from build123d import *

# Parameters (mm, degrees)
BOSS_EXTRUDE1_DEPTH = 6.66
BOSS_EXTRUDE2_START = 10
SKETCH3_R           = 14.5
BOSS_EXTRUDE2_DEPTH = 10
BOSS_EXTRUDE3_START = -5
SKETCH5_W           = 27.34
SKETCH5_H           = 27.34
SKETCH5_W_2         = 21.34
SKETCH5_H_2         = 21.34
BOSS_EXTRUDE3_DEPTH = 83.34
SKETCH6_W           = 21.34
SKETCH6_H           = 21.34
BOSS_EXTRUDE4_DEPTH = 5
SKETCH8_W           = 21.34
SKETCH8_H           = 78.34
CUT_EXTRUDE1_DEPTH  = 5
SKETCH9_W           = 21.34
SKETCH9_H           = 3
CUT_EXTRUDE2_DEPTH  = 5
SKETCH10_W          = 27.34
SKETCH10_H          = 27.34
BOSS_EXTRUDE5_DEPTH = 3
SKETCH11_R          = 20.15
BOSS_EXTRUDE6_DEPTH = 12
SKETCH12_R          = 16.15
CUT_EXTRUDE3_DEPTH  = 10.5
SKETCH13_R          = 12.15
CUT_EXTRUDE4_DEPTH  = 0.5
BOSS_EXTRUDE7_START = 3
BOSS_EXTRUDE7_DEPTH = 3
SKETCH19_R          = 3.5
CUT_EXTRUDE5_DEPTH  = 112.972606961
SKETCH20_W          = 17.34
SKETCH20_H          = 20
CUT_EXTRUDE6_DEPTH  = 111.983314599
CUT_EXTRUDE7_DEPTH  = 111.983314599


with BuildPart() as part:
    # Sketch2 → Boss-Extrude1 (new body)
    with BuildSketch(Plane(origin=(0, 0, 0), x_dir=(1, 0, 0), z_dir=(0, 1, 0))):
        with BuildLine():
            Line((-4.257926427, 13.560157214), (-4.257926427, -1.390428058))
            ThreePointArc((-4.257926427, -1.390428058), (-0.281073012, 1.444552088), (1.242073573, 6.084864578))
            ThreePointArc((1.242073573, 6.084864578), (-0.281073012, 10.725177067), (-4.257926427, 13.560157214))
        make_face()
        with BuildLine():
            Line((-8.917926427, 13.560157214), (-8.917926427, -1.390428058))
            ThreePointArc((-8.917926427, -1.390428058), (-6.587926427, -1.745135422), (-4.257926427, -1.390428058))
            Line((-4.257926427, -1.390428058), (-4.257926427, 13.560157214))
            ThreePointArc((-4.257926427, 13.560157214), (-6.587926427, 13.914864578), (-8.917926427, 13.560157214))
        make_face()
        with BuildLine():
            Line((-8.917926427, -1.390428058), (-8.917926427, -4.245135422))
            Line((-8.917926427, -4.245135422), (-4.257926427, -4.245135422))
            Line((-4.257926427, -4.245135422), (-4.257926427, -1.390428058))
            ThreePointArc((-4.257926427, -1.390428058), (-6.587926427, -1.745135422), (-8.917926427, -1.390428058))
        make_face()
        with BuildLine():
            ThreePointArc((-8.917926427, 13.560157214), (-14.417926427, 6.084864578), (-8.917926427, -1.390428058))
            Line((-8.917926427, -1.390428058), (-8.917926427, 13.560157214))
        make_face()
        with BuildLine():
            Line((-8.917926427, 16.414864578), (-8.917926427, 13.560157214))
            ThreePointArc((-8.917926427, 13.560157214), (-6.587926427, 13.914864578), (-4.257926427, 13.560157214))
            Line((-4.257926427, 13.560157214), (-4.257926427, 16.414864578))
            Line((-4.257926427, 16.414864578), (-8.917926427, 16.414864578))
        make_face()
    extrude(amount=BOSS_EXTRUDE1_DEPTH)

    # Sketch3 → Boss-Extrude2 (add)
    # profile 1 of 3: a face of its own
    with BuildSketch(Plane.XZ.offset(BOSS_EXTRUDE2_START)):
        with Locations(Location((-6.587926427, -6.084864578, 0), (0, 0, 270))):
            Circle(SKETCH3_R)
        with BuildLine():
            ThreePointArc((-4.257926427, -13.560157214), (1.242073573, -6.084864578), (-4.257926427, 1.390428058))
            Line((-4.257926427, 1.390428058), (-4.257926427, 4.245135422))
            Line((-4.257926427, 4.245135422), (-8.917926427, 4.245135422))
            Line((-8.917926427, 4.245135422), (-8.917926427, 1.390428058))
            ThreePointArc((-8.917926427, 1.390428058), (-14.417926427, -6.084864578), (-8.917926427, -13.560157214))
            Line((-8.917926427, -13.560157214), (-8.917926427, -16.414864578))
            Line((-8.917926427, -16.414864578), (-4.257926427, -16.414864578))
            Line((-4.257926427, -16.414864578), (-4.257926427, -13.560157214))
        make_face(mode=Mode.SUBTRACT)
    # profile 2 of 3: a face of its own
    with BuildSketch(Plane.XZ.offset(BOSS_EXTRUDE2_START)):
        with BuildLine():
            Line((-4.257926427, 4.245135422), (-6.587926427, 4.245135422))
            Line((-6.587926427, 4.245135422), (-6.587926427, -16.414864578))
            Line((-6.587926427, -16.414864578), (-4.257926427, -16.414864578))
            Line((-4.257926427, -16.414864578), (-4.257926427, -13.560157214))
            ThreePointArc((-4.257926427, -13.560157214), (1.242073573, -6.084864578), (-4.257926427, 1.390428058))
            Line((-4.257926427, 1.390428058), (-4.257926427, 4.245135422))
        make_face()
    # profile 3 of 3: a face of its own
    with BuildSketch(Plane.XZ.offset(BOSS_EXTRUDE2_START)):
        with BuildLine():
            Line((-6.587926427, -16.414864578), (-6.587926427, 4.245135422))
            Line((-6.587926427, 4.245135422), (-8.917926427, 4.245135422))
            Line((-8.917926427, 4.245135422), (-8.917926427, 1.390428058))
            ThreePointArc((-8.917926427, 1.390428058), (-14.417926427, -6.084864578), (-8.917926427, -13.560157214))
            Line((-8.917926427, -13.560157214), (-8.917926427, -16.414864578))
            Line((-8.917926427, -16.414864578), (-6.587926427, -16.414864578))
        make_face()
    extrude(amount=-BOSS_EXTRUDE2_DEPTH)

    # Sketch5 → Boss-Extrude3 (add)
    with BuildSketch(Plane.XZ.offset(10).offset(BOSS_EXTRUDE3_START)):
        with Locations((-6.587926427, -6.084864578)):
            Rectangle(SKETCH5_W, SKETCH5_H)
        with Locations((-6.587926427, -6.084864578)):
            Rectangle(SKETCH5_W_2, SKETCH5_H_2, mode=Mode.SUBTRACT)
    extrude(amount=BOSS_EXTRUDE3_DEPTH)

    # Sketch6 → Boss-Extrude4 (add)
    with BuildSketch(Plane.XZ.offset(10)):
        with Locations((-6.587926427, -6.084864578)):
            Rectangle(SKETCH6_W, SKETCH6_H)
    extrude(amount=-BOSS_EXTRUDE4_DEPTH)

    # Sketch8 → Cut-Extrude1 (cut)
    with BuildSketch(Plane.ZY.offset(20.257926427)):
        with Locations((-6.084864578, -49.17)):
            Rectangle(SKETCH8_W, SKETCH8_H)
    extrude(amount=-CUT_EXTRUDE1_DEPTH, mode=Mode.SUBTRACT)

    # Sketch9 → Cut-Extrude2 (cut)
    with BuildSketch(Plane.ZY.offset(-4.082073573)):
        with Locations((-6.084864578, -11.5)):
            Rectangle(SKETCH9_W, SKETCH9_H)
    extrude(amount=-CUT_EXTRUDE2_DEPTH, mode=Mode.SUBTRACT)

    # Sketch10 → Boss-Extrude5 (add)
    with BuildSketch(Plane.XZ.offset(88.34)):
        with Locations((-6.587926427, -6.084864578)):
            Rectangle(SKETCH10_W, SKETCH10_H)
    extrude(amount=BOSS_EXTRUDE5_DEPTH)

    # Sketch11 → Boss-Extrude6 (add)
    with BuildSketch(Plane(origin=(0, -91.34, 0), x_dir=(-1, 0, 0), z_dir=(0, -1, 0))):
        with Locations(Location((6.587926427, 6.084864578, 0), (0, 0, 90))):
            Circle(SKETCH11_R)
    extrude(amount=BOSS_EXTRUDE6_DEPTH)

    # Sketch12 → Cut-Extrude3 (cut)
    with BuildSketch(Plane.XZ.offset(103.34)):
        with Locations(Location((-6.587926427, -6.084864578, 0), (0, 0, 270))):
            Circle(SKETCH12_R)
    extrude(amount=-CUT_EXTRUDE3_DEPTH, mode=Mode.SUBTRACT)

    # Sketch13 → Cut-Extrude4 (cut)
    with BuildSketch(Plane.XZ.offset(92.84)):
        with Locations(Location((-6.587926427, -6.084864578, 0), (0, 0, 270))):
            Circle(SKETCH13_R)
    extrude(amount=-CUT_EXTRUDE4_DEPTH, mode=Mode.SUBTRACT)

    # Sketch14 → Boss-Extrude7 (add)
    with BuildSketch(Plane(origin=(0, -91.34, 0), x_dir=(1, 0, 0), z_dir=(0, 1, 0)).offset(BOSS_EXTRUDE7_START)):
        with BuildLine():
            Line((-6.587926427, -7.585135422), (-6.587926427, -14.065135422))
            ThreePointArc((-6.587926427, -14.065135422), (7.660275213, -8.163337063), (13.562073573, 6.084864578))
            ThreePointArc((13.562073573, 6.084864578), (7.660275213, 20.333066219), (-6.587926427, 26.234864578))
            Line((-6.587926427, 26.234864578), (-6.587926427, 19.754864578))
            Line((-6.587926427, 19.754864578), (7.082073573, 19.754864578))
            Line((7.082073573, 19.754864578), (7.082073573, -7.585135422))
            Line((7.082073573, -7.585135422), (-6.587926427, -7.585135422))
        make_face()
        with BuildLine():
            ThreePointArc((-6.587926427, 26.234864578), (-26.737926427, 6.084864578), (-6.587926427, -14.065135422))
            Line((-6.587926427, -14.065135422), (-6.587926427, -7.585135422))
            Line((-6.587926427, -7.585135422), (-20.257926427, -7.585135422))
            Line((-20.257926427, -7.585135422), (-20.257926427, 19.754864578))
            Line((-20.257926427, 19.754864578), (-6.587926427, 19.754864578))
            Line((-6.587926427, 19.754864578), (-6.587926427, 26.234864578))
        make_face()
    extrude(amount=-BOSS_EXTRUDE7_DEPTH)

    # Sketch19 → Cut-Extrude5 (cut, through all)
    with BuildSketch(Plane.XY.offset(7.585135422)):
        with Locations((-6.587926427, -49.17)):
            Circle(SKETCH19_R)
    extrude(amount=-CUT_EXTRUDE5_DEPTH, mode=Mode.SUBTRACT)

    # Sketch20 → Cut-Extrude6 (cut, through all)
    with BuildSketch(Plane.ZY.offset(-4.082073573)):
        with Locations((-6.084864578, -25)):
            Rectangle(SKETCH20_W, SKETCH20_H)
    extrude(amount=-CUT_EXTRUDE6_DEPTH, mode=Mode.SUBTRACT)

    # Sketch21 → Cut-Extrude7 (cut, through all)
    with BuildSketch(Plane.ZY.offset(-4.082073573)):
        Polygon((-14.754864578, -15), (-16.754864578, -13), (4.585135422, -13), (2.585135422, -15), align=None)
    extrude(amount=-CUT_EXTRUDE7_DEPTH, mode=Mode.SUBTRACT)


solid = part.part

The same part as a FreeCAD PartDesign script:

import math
import FreeCAD as App
import Part
import Sketcher
Q = App.Units.Quantity


def add_polygon(sketch, points):
    """Adds a closed chain of lines whose ends are joined by coincident constraints."""
    first, n = sketch.GeometryCount, len(points)
    for a, b in zip(points, points[1:] + points[:1]):
        sketch.addGeometry(Part.LineSegment(App.Vector(*a, 0), App.Vector(*b, 0)), False)
    for i in range(n):
        sketch.addConstraint(Sketcher.Constraint("Coincident", first + i, 2, first + (i + 1) % n, 1))

doc = App.newDocument("Part")
body = doc.addObject("PartDesign::Body", "Body")

sketch1 = body.newObject("Sketcher::SketchObject", "Sketch")
sketch1.AttachmentSupport = (doc.getObject("XZ_Plane"), [""])
sketch1.MapMode = "FlatFace"
sketch1.addGeometry(Part.ArcOfCircle(Part.Circle(App.Vector(-6.6, -6.1, 0), App.Vector(0, 0, 1), 7.8), math.radians(0), math.radians(73)), False)
sketch1.addGeometry(Part.ArcOfCircle(Part.Circle(App.Vector(-6.6, -6.1, 0), App.Vector(0, 0, 1), 7.8), math.radians(-73), math.radians(0)), False)
sketch1.addGeometry(Part.LineSegment(App.Vector(-4.3, -13.6, 0), App.Vector(-4.3, -16.4, 0)), False)
sketch1.addGeometry(Part.LineSegment(App.Vector(-4.3, -16.4, 0), App.Vector(-8.9, -16.4, 0)), False)
sketch1.addGeometry(Part.LineSegment(App.Vector(-8.9, -16.4, 0), App.Vector(-8.9, -13.6, 0)), False)
sketch1.addGeometry(Part.ArcOfCircle(Part.Circle(App.Vector(-6.6, -6.1, 0), App.Vector(0, 0, 1), 7.8), math.radians(107), math.radians(253)), False)
sketch1.addGeometry(Part.LineSegment(App.Vector(-8.9, 1.4, 0), App.Vector(-8.9, 4.2, 0)), False)
sketch1.addGeometry(Part.LineSegment(App.Vector(-8.9, 4.2, 0), App.Vector(-4.3, 4.2, 0)), False)
sketch1.addGeometry(Part.LineSegment(App.Vector(-4.3, 4.2, 0), App.Vector(-4.3, 1.4, 0)), False)
sketch1.addConstraint(Sketcher.Constraint("Tangent", 0, 1, 1, 2))
sketch1.addConstraint(Sketcher.Constraint("Coincident", 1, 1, 2, 1))
sketch1.addConstraint(Sketcher.Constraint("Coincident", 2, 2, 3, 1))
sketch1.addConstraint(Sketcher.Constraint("Coincident", 3, 2, 4, 1))
sketch1.addConstraint(Sketcher.Constraint("Coincident", 4, 2, 5, 2))
sketch1.addConstraint(Sketcher.Constraint("Coincident", 5, 1, 6, 1))
sketch1.addConstraint(Sketcher.Constraint("Coincident", 6, 2, 7, 1))
sketch1.addConstraint(Sketcher.Constraint("Coincident", 7, 2, 8, 1))
sketch1.addConstraint(Sketcher.Constraint("Coincident", 8, 2, 0, 2))
sketch1.addConstraint(Sketcher.Constraint("Vertical", 2))
sketch1.addConstraint(Sketcher.Constraint("Horizontal", 3))
sketch1.addConstraint(Sketcher.Constraint("Vertical", 4))
sketch1.addConstraint(Sketcher.Constraint("Vertical", 6))
sketch1.addConstraint(Sketcher.Constraint("Horizontal", 7))
sketch1.addConstraint(Sketcher.Constraint("Vertical", 8))
sketch1.addConstraint(Sketcher.Constraint("Coincident", 5, 3, 0, 3))
sketch1.addConstraint(Sketcher.Constraint("Equal", 0, 1))
sketch1.addConstraint(Sketcher.Constraint("Equal", 1, 5))
sketch1.addConstraint(Sketcher.Constraint("Horizontal", 5, 3, 0, 1))
sketch1.addConstraint(Sketcher.Constraint("Horizontal", 1, 1, 4, 2))
sketch1.addConstraint(Sketcher.Constraint("Horizontal", 5, 1, 8, 2))
sketch1.addConstraint(Sketcher.Constraint("Vertical", 4, 2, 5, 1))
sketch1.addConstraint(Sketcher.Constraint("Equal", 4, 6))
sketch1.addConstraint(Sketcher.Constraint("Radius", 0, Q("7.83 mm")))
sketch1.addConstraint(Sketcher.Constraint("DistanceX", 3, 2, 3, 1, Q("4.66 mm")))
sketch1.addConstraint(Sketcher.Constraint("DistanceY", 2, 2, 5, 3, Q("10.33 mm")))
sketch1.addConstraint(Sketcher.Constraint("DistanceY", -1, 1, 5, 1, Q("1.390428 mm")))
sketch1.addConstraint(Sketcher.Constraint("DistanceX", 0, 3, -1, 1, Q("6.587926 mm")))
pad1 = body.newObject("PartDesign::Pad", "Pad")
pad1.Profile = sketch1
pad1.Length = 6.66
pad1.Reversed = True

sketch2 = body.newObject("Sketcher::SketchObject", "Sketch001")
sketch2.AttachmentSupport = (doc.getObject("XZ_Plane"), [""])
sketch2.MapMode = "FlatFace"
sketch2.AttachmentOffset = App.Placement(App.Vector(0, 0, 10), App.Rotation())
sketch2.addGeometry(Part.Circle(App.Vector(-7, -6, 0), App.Vector(0, 0, 1), 14), False)
sketch2.addConstraint(Sketcher.Constraint("Diameter", 0, Q("29 mm")))
sketch2.addConstraint(Sketcher.Constraint("DistanceX", 0, 3, -1, 1, Q("6.587926 mm")))
sketch2.addConstraint(Sketcher.Constraint("DistanceY", 0, 3, -1, 1, Q("6.084865 mm")))
pad2 = body.newObject("PartDesign::Pad", "Pad001")
pad2.Profile = sketch2
pad2.Length = 10
pad2.Reversed = True

sketch3 = body.newObject("Sketcher::SketchObject", "Sketch002")
sketch3.AttachmentSupport = (doc.getObject("XZ_Plane"), [""])
sketch3.MapMode = "FlatFace"
sketch3.AttachmentOffset = App.Placement(App.Vector(0, 0, 5), App.Rotation())
add_polygon(sketch3, [(-20, 8), (-20, -20), (7, -20), (7, 8)])
add_polygon(sketch3, [(4, -17), (-17, -17), (-17, 5), (4, 5)])
sketch3.addConstraint(Sketcher.Constraint("Vertical", 0))
sketch3.addConstraint(Sketcher.Constraint("Horizontal", 1))
sketch3.addConstraint(Sketcher.Constraint("Vertical", 2))
sketch3.addConstraint(Sketcher.Constraint("Horizontal", 3))
sketch3.addConstraint(Sketcher.Constraint("Horizontal", 4))
sketch3.addConstraint(Sketcher.Constraint("Vertical", 5))
sketch3.addConstraint(Sketcher.Constraint("Horizontal", 6))
sketch3.addConstraint(Sketcher.Constraint("Vertical", 7))
sketch3.addConstraint(Sketcher.Constraint("Equal", 3, 0))
sketch3.addConstraint(Sketcher.Constraint("Equal", 6, 5))
sketch3.addConstraint(Sketcher.Constraint("DistanceX", 0, 2, 4, 2, Q("3 mm")))
sketch3.addConstraint(Sketcher.Constraint("DistanceY", 0, 2, 4, 2, Q("3 mm")))
sketch3.addConstraint(Sketcher.Constraint("DistanceY", 5, 2, 3, 2, Q("3 mm")))
sketch3.addConstraint(Sketcher.Constraint("DistanceX", 1, 1, 1, 2, Q("27.34 mm")))
sketch3.addConstraint(Sketcher.Constraint("DistanceX", 0, 2, -1, 1, Q("20.257926 mm")))
sketch3.addConstraint(Sketcher.Constraint("DistanceY", 0, 2, -1, 1, Q("19.754865 mm")))
pad3 = body.newObject("PartDesign::Pad", "Pad002")
pad3.Profile = sketch3
pad3.Length = 83.34

sketch4 = body.newObject("Sketcher::SketchObject", "Sketch003")
sketch4.AttachmentSupport = (doc.getObject("XZ_Plane"), [""])
sketch4.MapMode = "FlatFace"
sketch4.AttachmentOffset = App.Placement(App.Vector(0, 0, 10), App.Rotation())
add_polygon(sketch4, [(-17, 5), (-17, -17), (4, -17), (4, 5)])
sketch4.addConstraint(Sketcher.Constraint("Vertical", 0))
sketch4.addConstraint(Sketcher.Constraint("Horizontal", 1))
sketch4.addConstraint(Sketcher.Constraint("Vertical", 2))
sketch4.addConstraint(Sketcher.Constraint("Horizontal", 3))
sketch4.addConstraint(Sketcher.Constraint("Equal", 3, 0))
sketch4.addConstraint(Sketcher.Constraint("DistanceX", 1, 1, 1, 2, Q("21.34 mm")))
sketch4.addConstraint(Sketcher.Constraint("DistanceX", 0, 2, -1, 1, Q("17.257926 mm")))
sketch4.addConstraint(Sketcher.Constraint("DistanceY", 0, 2, -1, 1, Q("16.754865 mm")))
pad4 = body.newObject("PartDesign::Pad", "Pad003")
pad4.Profile = sketch4
pad4.Length = 5
pad4.Reversed = True

sketch5 = body.newObject("Sketcher::SketchObject", "Sketch004")
sketch5.AttachmentSupport = (doc.getObject("YZ_Plane"), [""])
sketch5.MapMode = "FlatFace"
sketch5.AttachmentOffset = App.Placement(App.Vector(0, 0, -20.257926), App.Rotation())
add_polygon(sketch5, [(-10, -17), (-88, -17), (-88, 5), (-10, 5)])
sketch5.addConstraint(Sketcher.Constraint("Horizontal", 0))
sketch5.addConstraint(Sketcher.Constraint("Vertical", 1))
sketch5.addConstraint(Sketcher.Constraint("Horizontal", 2))
sketch5.addConstraint(Sketcher.Constraint("Vertical", 3))
sketch5.addConstraint(Sketcher.Constraint("DistanceX", 2, 2, -1, 1, Q("10 mm")))
sketch5.addConstraint(Sketcher.Constraint("DistanceX", 0, 2, 0, 1, Q("78.34 mm")))
sketch5.addConstraint(Sketcher.Constraint("DistanceY", 1, 1, 1, 2, Q("21.34 mm")))
sketch5.addConstraint(Sketcher.Constraint("DistanceY", 0, 2, -1, 1, Q("16.754865 mm")))
pocket1 = body.newObject("PartDesign::Pocket", "Pocket")
pocket1.Profile = sketch5
pocket1.Length = 5
pocket1.Reversed = True

sketch6 = body.newObject("Sketcher::SketchObject", "Sketch005")
sketch6.AttachmentSupport = (doc.getObject("YZ_Plane"), [""])
sketch6.MapMode = "FlatFace"
sketch6.AttachmentOffset = App.Placement(App.Vector(0, 0, 4.082074), App.Rotation())
add_polygon(sketch6, [(-10, -16.8), (-13, -16.8), (-13, 4.6), (-10, 4.6)])
sketch6.addConstraint(Sketcher.Constraint("Horizontal", 0))
sketch6.addConstraint(Sketcher.Constraint("Vertical", 1))
sketch6.addConstraint(Sketcher.Constraint("Horizontal", 2))
sketch6.addConstraint(Sketcher.Constraint("Vertical", 3))
sketch6.addConstraint(Sketcher.Constraint("DistanceX", 0, 2, 0, 1, Q("3 mm")))
sketch6.addConstraint(Sketcher.Constraint("DistanceX", 0, 2, -1, 1, Q("13 mm")))
sketch6.addConstraint(Sketcher.Constraint("DistanceY", 1, 1, 1, 2, Q("21.34 mm")))
sketch6.addConstraint(Sketcher.Constraint("DistanceY", 0, 2, -1, 1, Q("16.754865 mm")))
pocket2 = body.newObject("PartDesign::Pocket", "Pocket001")
pocket2.Profile = sketch6
pocket2.Length = 5
pocket2.Reversed = True

sketch7 = body.newObject("Sketcher::SketchObject", "Sketch006")
sketch7.AttachmentSupport = (doc.getObject("XZ_Plane"), [""])
sketch7.MapMode = "FlatFace"
sketch7.AttachmentOffset = App.Placement(App.Vector(0, 0, 88.34), App.Rotation())
add_polygon(sketch7, [(-20, 8), (-20, -20), (7, -20), (7, 8)])
sketch7.addConstraint(Sketcher.Constraint("Vertical", 0))
sketch7.addConstraint(Sketcher.Constraint("Horizontal", 1))
sketch7.addConstraint(Sketcher.Constraint("Vertical", 2))
sketch7.addConstraint(Sketcher.Constraint("Horizontal", 3))
sketch7.addConstraint(Sketcher.Constraint("Equal", 3, 0))
sketch7.addConstraint(Sketcher.Constraint("DistanceX", 1, 1, 1, 2, Q("27.34 mm")))
sketch7.addConstraint(Sketcher.Constraint("DistanceX", 0, 2, -1, 1, Q("20.257926 mm")))
sketch7.addConstraint(Sketcher.Constraint("DistanceY", 0, 2, -1, 1, Q("19.754865 mm")))
pad5 = body.newObject("PartDesign::Pad", "Pad004")
pad5.Profile = sketch7
pad5.Length = 3

sketch8 = body.newObject("Sketcher::SketchObject", "Sketch007")
sketch8.AttachmentSupport = (doc.getObject("XZ_Plane"), [""])
sketch8.MapMode = "FlatFace"
sketch8.AttachmentOffset = App.Placement(App.Vector(0, 0, 91.34), App.Rotation())
sketch8.addGeometry(Part.Circle(App.Vector(-7, -6, 0), App.Vector(0, 0, 1), 20), False)
sketch8.addConstraint(Sketcher.Constraint("Diameter", 0, Q("40.3 mm")))
sketch8.addConstraint(Sketcher.Constraint("DistanceX", 0, 3, -1, 1, Q("6.587926 mm")))
sketch8.addConstraint(Sketcher.Constraint("DistanceY", 0, 3, -1, 1, Q("6.084865 mm")))
pad6 = body.newObject("PartDesign::Pad", "Pad005")
pad6.Profile = sketch8
pad6.Length = 12

sketch9 = body.newObject("Sketcher::SketchObject", "Sketch008")
sketch9.AttachmentSupport = (doc.getObject("XZ_Plane"), [""])
sketch9.MapMode = "FlatFace"
sketch9.AttachmentOffset = App.Placement(App.Vector(0, 0, 103.34), App.Rotation())
sketch9.addGeometry(Part.Circle(App.Vector(-7, -6, 0), App.Vector(0, 0, 1), 16), False)
sketch9.addConstraint(Sketcher.Constraint("Diameter", 0, Q("32.3 mm")))
sketch9.addConstraint(Sketcher.Constraint("DistanceX", 0, 3, -1, 1, Q("6.587926 mm")))
sketch9.addConstraint(Sketcher.Constraint("DistanceY", 0, 3, -1, 1, Q("6.084865 mm")))
pocket3 = body.newObject("PartDesign::Pocket", "Pocket002")
pocket3.Profile = sketch9
pocket3.Length = 10.5

sketch10 = body.newObject("Sketcher::SketchObject", "Sketch009")
sketch10.AttachmentSupport = (doc.getObject("XZ_Plane"), [""])
sketch10.MapMode = "FlatFace"
sketch10.AttachmentOffset = App.Placement(App.Vector(0, 0, 92.84), App.Rotation())
sketch10.addGeometry(Part.Circle(App.Vector(-7, -6, 0), App.Vector(0, 0, 1), 12), False)
sketch10.addConstraint(Sketcher.Constraint("Diameter", 0, Q("24.3 mm")))
sketch10.addConstraint(Sketcher.Constraint("DistanceX", 0, 3, -1, 1, Q("6.587926 mm")))
sketch10.addConstraint(Sketcher.Constraint("DistanceY", 0, 3, -1, 1, Q("6.084865 mm")))
pocket4 = body.newObject("PartDesign::Pocket", "Pocket003")
pocket4.Profile = sketch10
pocket4.Length = 0.5

sketch11 = body.newObject("Sketcher::SketchObject", "Sketch010")
sketch11.AttachmentSupport = (doc.getObject("XZ_Plane"), [""])
sketch11.MapMode = "FlatFace"
sketch11.AttachmentOffset = App.Placement(App.Vector(0, 0, 88.34), App.Rotation())
sketch11.addGeometry(Part.ArcOfCircle(Part.Circle(App.Vector(-7, -6, 0), App.Vector(0, 0, 1), 20), math.radians(0), math.radians(90)), False)
sketch11.addGeometry(Part.ArcOfCircle(Part.Circle(App.Vector(-7, -6, 0), App.Vector(0, 0, 1), 20), math.radians(-90), math.radians(0)), False)
sketch11.addGeometry(Part.ArcOfCircle(Part.Circle(App.Vector(-7, -6, 0), App.Vector(0, 0, 1), 20), math.radians(90), math.radians(270)), False)
add_polygon(sketch11, [(7, -20), (7, 8), (-20, 8), (-20, -20)])
sketch11.addConstraint(Sketcher.Constraint("Tangent", 0, 1, 1, 2))
sketch11.addConstraint(Sketcher.Constraint("Tangent", 1, 1, 2, 2))
sketch11.addConstraint(Sketcher.Constraint("Tangent", 2, 1, 0, 2))
sketch11.addConstraint(Sketcher.Constraint("Vertical", 3))
sketch11.addConstraint(Sketcher.Constraint("Horizontal", 4))
sketch11.addConstraint(Sketcher.Constraint("Vertical", 5))
sketch11.addConstraint(Sketcher.Constraint("Horizontal", 6))
sketch11.addConstraint(Sketcher.Constraint("Horizontal", 2, 3, 0, 1))
sketch11.addConstraint(Sketcher.Constraint("Vertical", 2, 3, 1, 1))
sketch11.addConstraint(Sketcher.Constraint("Vertical", 1, 1, 2, 1))
sketch11.addConstraint(Sketcher.Constraint("Equal", 6, 3))
sketch11.addConstraint(Sketcher.Constraint("Radius", 0, Q("20.15 mm")))
sketch11.addConstraint(Sketcher.Constraint("DistanceX", 4, 2, 4, 1, Q("27.34 mm")))
sketch11.addConstraint(Sketcher.Constraint("DistanceX", 2, 1, 3, 2, Q("13.67 mm")))
sketch11.addConstraint(Sketcher.Constraint("DistanceY", 3, 2, 2, 1, Q("6.48 mm")))
sketch11.addConstraint(Sketcher.Constraint("DistanceX", 0, 3, -1, 1, Q("6.587926 mm")))
sketch11.addConstraint(Sketcher.Constraint("DistanceY", 0, 3, -1, 1, Q("6.084865 mm")))
pad7 = body.newObject("PartDesign::Pad", "Pad006")
pad7.Profile = sketch11
pad7.Length = 3

sketch12 = body.newObject("Sketcher::SketchObject", "Sketch011")
sketch12.AttachmentSupport = (doc.getObject("XY_Plane"), [""])
sketch12.MapMode = "FlatFace"
sketch12.AttachmentOffset = App.Placement(App.Vector(0, 0, 7.585135), App.Rotation())
sketch12.addGeometry(Part.Circle(App.Vector(-6.6, -49.2, 0), App.Vector(0, 0, 1), 3.5), False)
sketch12.addConstraint(Sketcher.Constraint("Diameter", 0, Q("7 mm")))
sketch12.addConstraint(Sketcher.Constraint("DistanceY", 0, 3, -1, 1, Q("49.17 mm")))
sketch12.addConstraint(Sketcher.Constraint("DistanceX", 0, 3, -1, 1, Q("6.587926 mm")))
pocket5 = body.newObject("PartDesign::Pocket", "Pocket004")
pocket5.Profile = sketch12
pocket5.Type = "ThroughAll"

sketch13 = body.newObject("Sketcher::SketchObject", "Sketch012")
sketch13.AttachmentSupport = (doc.getObject("YZ_Plane"), [""])
sketch13.MapMode = "FlatFace"
sketch13.AttachmentOffset = App.Placement(App.Vector(0, 0, 4.082074), App.Rotation())
add_polygon(sketch13, [(-15, -15), (-35, -15), (-35, 3), (-15, 3)])
sketch13.addConstraint(Sketcher.Constraint("Horizontal", 0))
sketch13.addConstraint(Sketcher.Constraint("Vertical", 1))
sketch13.addConstraint(Sketcher.Constraint("Horizontal", 2))
sketch13.addConstraint(Sketcher.Constraint("Vertical", 3))
sketch13.addConstraint(Sketcher.Constraint("DistanceX", 0, 2, 0, 1, Q("20 mm")))
sketch13.addConstraint(Sketcher.Constraint("DistanceX", 0, 2, -1, 1, Q("35 mm")))
sketch13.addConstraint(Sketcher.Constraint("DistanceY", 1, 1, 1, 2, Q("17.34 mm")))
sketch13.addConstraint(Sketcher.Constraint("DistanceY", 0, 2, -1, 1, Q("14.754865 mm")))
pocket6 = body.newObject("PartDesign::Pocket", "Pocket005")
pocket6.Profile = sketch13
pocket6.Type = "ThroughAll"
pocket6.Reversed = True

sketch14 = body.newObject("Sketcher::SketchObject", "Sketch013")
sketch14.AttachmentSupport = (doc.getObject("YZ_Plane"), [""])
sketch14.MapMode = "FlatFace"
sketch14.AttachmentOffset = App.Placement(App.Vector(0, 0, 4.082074), App.Rotation())
add_polygon(sketch14, [(-13, -16.8), (-15, -14.8), (-15, 2.6), (-13, 4.6)])
sketch14.addConstraint(Sketcher.Constraint("Vertical", 1))
sketch14.addConstraint(Sketcher.Constraint("Vertical", 3))
sketch14.addConstraint(Sketcher.Constraint("Perpendicular", 0, 2))
sketch14.addConstraint(Sketcher.Constraint("Equal", 0, 2))
sketch14.addConstraint(Sketcher.Constraint("DistanceX", 0, 2, -1, 1, Q("15 mm")))
sketch14.addConstraint(Sketcher.Constraint("DistanceX", 2, 2, -1, 1, Q("13 mm")))
sketch14.addConstraint(Sketcher.Constraint("DistanceY", 1, 1, 1, 2, Q("17.34 mm")))
sketch14.addConstraint(Sketcher.Constraint("DistanceY", 0, 2, -1, 1, Q("14.754865 mm")))
pocket7 = body.newObject("PartDesign::Pocket", "Pocket006")
pocket7.Profile = sketch14
pocket7.Type = "ThroughAll"
pocket7.Reversed = True

doc.recompute()
